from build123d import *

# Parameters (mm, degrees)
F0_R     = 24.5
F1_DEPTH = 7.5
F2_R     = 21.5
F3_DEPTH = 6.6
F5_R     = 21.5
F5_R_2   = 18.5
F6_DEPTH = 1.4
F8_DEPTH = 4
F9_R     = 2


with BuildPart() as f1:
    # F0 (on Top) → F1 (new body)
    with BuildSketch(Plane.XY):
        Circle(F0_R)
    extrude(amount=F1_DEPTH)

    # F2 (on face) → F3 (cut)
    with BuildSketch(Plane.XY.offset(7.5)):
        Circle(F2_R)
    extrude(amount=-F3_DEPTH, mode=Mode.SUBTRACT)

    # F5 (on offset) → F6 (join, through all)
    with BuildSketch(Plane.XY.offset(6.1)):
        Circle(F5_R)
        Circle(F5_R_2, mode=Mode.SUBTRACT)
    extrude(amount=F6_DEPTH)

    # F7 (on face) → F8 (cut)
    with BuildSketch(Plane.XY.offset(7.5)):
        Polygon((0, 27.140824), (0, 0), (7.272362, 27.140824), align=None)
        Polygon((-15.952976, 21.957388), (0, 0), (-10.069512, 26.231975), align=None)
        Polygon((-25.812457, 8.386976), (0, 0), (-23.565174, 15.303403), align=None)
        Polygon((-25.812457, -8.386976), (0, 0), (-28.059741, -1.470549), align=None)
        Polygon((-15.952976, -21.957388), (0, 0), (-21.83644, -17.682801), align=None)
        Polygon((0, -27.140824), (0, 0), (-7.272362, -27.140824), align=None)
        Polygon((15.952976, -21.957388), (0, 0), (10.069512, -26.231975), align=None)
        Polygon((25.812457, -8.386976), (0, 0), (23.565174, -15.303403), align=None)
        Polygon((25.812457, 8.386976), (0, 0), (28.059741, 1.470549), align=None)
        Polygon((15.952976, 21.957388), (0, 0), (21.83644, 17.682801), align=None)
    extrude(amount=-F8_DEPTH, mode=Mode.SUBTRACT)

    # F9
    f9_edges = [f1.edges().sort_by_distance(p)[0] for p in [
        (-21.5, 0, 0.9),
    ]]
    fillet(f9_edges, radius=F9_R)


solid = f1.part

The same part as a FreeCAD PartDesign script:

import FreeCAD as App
import Part
import Sketcher
Q = App.Units.Quantity


def edges_at(feature, points):
    """Names of the edges that pass closest to the given points."""
    edges = feature.Shape.Edges
    near = lambda p: min(range(len(edges)), key=lambda i: edges[i].distToShape(Part.Vertex(*p))[0])
    return sorted({f"Edge{near(p) + 1}" for p in points})


def add_polygon(sketch, points):
    """Adds a closed chain of lines whose ends are joined by coincident constraints."""
    first, n = sketch.GeometryCount, len(points)
    for a, b in zip(points, points[1:] + points[:1]):
        sketch.addGeometry(Part.LineSegment(App.Vector(*a, 0), App.Vector(*b, 0)), False)
    for i in range(n):
        sketch.addConstraint(Sketcher.Constraint("Coincident", first + i, 2, first + (i + 1) % n, 1))

doc = App.newDocument("Part")
body = doc.addObject("PartDesign::Body", "Body")

sketch1 = doc.addObject("Sketcher::SketchObject", "Sketch")
body.addObject(sketch1)
sketch1.AttachmentSupport = (doc.XY_Plane, [""])
sketch1.MapMode = "FlatFace"
sketch1.addGeometry(Part.Circle(App.Vector(0, 0, 0), App.Vector(0, 0, 1), 24.5), False)
sketch1.addConstraint([
    Sketcher.Constraint("Coincident", 0, 3, -1, 1),
    Sketcher.Constraint("Diameter", 0, Q("49 mm")),
])
pad1 = doc.addObject("PartDesign::Pad", "Pad")
body.addObject(pad1)
pad1.Profile = sketch1
pad1.Length = 7.5

sketch2 = doc.addObject("Sketcher::SketchObject", "Sketch001")
body.addObject(sketch2)
sketch2.AttachmentSupport = (doc.XY_Plane, [""])
sketch2.MapMode = "FlatFace"
sketch2.AttachmentOffset = App.Placement(App.Vector(0, 0, 7.5), App.Rotation())
sketch2.addGeometry(Part.Circle(App.Vector(0, 0, 0), App.Vector(0, 0, 1), 21.5), False)
sketch2.addConstraint([
    Sketcher.Constraint("Coincident", 0, 3, -1, 1),
    Sketcher.Constraint("Diameter", 0, Q("43 mm")),
])
pocket1 = doc.addObject("PartDesign::Pocket", "Pocket")
body.addObject(pocket1)
pocket1.Profile = sketch2
pocket1.Length = 6.6

sketch3 = doc.addObject("Sketcher::SketchObject", "Sketch002")
body.addObject(sketch3)
sketch3.AttachmentSupport = (doc.XY_Plane, [""])
sketch3.MapMode = "FlatFace"
sketch3.AttachmentOffset = App.Placement(App.Vector(0, 0, 6.1), App.Rotation())
sketch3.addGeometry([
    Part.Circle(App.Vector(0, 0, 0), App.Vector(0, 0, 1), 21.5),
    Part.Circle(App.Vector(0, 0, 0), App.Vector(0, 0, 1), 18.5),
], False)
sketch3.addConstraint([
    Sketcher.Constraint("Coincident", 0, 3, -1, 1),
    Sketcher.Constraint("Coincident", 1, 3, -1, 1),
    Sketcher.Constraint("Diameter", 0, Q("43 mm")),
    Sketcher.Constraint("Diameter", 1, Q("37 mm")),
])
pad2 = doc.addObject("PartDesign::Pad", "Pad001")
body.addObject(pad2)
pad2.Profile = sketch3
pad2.Length = 1.4

sketch4 = doc.addObject("Sketcher::SketchObject", "Sketch003")
body.addObject(sketch4)
sketch4.AttachmentSupport = (doc.XY_Plane, [""])
sketch4.MapMode = "FlatFace"
sketch4.AttachmentOffset = App.Placement(App.Vector(0, 0, 7.5), App.Rotation())
add_polygon(sketch4, [(0, 27.140824), (0, 0), (7.272362, 27.140824)])
add_polygon(sketch4, [(-15.952976, 21.957388), (0, 0), (-10.069512, 26.231975)])
add_polygon(sketch4, [(-25.812457, 8.386976), (0, 0), (-23.565174, 15.303403)])
add_polygon(sketch4, [(-25.812457, -8.386976), (0, 0), (-28.059741, -1.470549)])
add_polygon(sketch4, [(-15.952976, -21.957388), (0, 0), (-21.83644, -17.682801)])
add_polygon(sketch4, [(0, -27.140824), (0, 0), (-7.272362, -27.140824)])
add_polygon(sketch4, [(15.952976, -21.957388), (0, 0), (10.069512, -26.231975)])
add_polygon(sketch4, [(25.812457, -8.386976), (0, 0), (23.565174, -15.303403)])
add_polygon(sketch4, [(25.812457, 8.386976), (0, 0), (28.059741, 1.470549)])
add_polygon(sketch4, [(15.952976, 21.957388), (0, 0), (21.83644, 17.682801)])
sketch4.addConstraint([
    Sketcher.Constraint("Vertical", 0),
    Sketcher.Constraint("Horizontal", 2),
    Sketcher.Constraint("Vertical", 15),
    Sketcher.Constraint("Horizontal", 17),
    Sketcher.Constraint("Coincident", 0, 2, -1, 1),
    Sketcher.Constraint("Coincident", 3, 2, -1, 1),
    Sketcher.Constraint("Coincident", 6, 2, -1, 1),
    Sketcher.Constraint("Coincident", 9, 2, -1, 1),
    Sketcher.Constraint("Coincident", 12, 2, -1, 1),
    Sketcher.Constraint("Coincident", 15, 2, -1, 1),
    Sketcher.Constraint("Coincident", 18, 2, -1, 1),
    Sketcher.Constraint("Coincident", 21, 2, -1, 1),
    Sketcher.Constraint("Coincident", 24, 2, -1, 1),
    Sketcher.Constraint("Coincident", 27, 2, -1, 1),
    Sketcher.Constraint("Symmetric", 1, 2, 16, 2, -1, 1),
    Sketcher.Constraint("Symmetric", 4, 2, 19, 2, -1, 1),
    Sketcher.Constraint("Symmetric", 5, 2, 20, 2, -1, 1),
    Sketcher.Constraint("Symmetric", 7, 2, 22, 2, -1, 1),
    Sketcher.Constraint("Symmetric", 8, 2, 23, 2, -1, 1),
    Sketcher.Constraint("Symmetric", 10, 2, 25, 2, -1, 1),
    Sketcher.Constraint("Symmetric", 11, 2, 26, 2, -1, 1),
    Sketcher.Constraint("Symmetric", 13, 2, 28, 2, -1, 1),
    Sketcher.Constraint("Symmetric", 14, 2, 29, 2, -1, 1),
    Sketcher.Constraint("Symmetric", 14, 2, 20, 2, -2),
    Sketcher.Constraint("Symmetric", 11, 2, 23, 2, -2),
    Sketcher.Constraint("Perpendicular", 3, 5),
    Sketcher.Constraint("Perpendicular", 6, 8),
    Sketcher.Constraint("Perpendicular", 9, 11),
    Sketcher.Constraint("Perpendicular", 12, 14),
    Sketcher.Constraint("Equal", 1, 4),
    Sketcher.Constraint("Equal", 3, 6),
    Sketcher.Constraint("Equal", 4, 7),
    Sketcher.Constraint("Equal", 7, 10),
    Sketcher.Constraint("Equal", 10, 13),
    Sketcher.Constraint("Angle", 1, Q("75 deg")),
    Sketcher.Constraint("Angle", 3, Q("-54 deg")),
    Sketcher.Constraint("Angle", 4, Q("111 deg")),
    Sketcher.Constraint("Angle", 6, Q("-18.000001 deg")),
    Sketcher.Constraint("DistanceY", 8, 2, 4, 2, Q("17.844999 mm")),
])
pocket2 = doc.addObject("PartDesign::Pocket", "Pocket001")
body.addObject(pocket2)
pocket2.Profile = sketch4
pocket2.Length = 4
doc.recompute()

fillet = doc.addObject("PartDesign::Fillet", "Fillet")
body.addObject(fillet)
fillet.Base = (pocket2, edges_at(pocket2, [(-21.5, 0, 0.9)]))
fillet.Radius = 2

doc.recompute()
